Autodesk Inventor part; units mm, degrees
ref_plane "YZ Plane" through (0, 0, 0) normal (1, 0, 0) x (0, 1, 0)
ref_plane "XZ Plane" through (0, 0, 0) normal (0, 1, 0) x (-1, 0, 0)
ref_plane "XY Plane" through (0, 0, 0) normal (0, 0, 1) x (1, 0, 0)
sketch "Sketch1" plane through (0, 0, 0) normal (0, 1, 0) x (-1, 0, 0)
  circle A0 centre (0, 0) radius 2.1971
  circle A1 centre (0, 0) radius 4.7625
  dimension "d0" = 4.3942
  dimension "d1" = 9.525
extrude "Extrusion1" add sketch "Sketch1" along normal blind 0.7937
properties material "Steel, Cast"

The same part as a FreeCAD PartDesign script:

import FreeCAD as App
import Part
import Sketcher

V = App.Vector
Q = App.Units.Quantity

doc = App.newDocument("Part")
body = doc.addObject("PartDesign::Body", "Body")

# Sketch on XZ plane
sketch1 = body.newObject("Sketcher::SketchObject", "Sketch")
sketch1.AttachmentSupport = (doc.getObject("XZ_Plane"), [""])
sketch1.MapMode = "FlatFace"
sketch1.addGeometry(Part.Circle(V(0, 0, 0), V(0, 0, 1), 4.8), False)
sketch1.addGeometry(Part.Circle(V(0, 0, 0), V(0, 0, 1), 2.2), False)
sketch1.addConstraint(Sketcher.Constraint("Coincident", 0, 3, -1, 1))
sketch1.addConstraint(Sketcher.Constraint("Coincident", 1, 3, -1, 1))
sketch1.addConstraint(Sketcher.Constraint("Diameter", 0, Q("0.375 in")))
sketch1.addConstraint(Sketcher.Constraint("Diameter", 1, Q("0.173 in")))
pad1 = body.newObject("PartDesign::Pad", "Pad")
pad1.Profile = sketch1
pad1.Length = Q("0.031248 in")
pad1.Reversed = True

doc.recompute()
